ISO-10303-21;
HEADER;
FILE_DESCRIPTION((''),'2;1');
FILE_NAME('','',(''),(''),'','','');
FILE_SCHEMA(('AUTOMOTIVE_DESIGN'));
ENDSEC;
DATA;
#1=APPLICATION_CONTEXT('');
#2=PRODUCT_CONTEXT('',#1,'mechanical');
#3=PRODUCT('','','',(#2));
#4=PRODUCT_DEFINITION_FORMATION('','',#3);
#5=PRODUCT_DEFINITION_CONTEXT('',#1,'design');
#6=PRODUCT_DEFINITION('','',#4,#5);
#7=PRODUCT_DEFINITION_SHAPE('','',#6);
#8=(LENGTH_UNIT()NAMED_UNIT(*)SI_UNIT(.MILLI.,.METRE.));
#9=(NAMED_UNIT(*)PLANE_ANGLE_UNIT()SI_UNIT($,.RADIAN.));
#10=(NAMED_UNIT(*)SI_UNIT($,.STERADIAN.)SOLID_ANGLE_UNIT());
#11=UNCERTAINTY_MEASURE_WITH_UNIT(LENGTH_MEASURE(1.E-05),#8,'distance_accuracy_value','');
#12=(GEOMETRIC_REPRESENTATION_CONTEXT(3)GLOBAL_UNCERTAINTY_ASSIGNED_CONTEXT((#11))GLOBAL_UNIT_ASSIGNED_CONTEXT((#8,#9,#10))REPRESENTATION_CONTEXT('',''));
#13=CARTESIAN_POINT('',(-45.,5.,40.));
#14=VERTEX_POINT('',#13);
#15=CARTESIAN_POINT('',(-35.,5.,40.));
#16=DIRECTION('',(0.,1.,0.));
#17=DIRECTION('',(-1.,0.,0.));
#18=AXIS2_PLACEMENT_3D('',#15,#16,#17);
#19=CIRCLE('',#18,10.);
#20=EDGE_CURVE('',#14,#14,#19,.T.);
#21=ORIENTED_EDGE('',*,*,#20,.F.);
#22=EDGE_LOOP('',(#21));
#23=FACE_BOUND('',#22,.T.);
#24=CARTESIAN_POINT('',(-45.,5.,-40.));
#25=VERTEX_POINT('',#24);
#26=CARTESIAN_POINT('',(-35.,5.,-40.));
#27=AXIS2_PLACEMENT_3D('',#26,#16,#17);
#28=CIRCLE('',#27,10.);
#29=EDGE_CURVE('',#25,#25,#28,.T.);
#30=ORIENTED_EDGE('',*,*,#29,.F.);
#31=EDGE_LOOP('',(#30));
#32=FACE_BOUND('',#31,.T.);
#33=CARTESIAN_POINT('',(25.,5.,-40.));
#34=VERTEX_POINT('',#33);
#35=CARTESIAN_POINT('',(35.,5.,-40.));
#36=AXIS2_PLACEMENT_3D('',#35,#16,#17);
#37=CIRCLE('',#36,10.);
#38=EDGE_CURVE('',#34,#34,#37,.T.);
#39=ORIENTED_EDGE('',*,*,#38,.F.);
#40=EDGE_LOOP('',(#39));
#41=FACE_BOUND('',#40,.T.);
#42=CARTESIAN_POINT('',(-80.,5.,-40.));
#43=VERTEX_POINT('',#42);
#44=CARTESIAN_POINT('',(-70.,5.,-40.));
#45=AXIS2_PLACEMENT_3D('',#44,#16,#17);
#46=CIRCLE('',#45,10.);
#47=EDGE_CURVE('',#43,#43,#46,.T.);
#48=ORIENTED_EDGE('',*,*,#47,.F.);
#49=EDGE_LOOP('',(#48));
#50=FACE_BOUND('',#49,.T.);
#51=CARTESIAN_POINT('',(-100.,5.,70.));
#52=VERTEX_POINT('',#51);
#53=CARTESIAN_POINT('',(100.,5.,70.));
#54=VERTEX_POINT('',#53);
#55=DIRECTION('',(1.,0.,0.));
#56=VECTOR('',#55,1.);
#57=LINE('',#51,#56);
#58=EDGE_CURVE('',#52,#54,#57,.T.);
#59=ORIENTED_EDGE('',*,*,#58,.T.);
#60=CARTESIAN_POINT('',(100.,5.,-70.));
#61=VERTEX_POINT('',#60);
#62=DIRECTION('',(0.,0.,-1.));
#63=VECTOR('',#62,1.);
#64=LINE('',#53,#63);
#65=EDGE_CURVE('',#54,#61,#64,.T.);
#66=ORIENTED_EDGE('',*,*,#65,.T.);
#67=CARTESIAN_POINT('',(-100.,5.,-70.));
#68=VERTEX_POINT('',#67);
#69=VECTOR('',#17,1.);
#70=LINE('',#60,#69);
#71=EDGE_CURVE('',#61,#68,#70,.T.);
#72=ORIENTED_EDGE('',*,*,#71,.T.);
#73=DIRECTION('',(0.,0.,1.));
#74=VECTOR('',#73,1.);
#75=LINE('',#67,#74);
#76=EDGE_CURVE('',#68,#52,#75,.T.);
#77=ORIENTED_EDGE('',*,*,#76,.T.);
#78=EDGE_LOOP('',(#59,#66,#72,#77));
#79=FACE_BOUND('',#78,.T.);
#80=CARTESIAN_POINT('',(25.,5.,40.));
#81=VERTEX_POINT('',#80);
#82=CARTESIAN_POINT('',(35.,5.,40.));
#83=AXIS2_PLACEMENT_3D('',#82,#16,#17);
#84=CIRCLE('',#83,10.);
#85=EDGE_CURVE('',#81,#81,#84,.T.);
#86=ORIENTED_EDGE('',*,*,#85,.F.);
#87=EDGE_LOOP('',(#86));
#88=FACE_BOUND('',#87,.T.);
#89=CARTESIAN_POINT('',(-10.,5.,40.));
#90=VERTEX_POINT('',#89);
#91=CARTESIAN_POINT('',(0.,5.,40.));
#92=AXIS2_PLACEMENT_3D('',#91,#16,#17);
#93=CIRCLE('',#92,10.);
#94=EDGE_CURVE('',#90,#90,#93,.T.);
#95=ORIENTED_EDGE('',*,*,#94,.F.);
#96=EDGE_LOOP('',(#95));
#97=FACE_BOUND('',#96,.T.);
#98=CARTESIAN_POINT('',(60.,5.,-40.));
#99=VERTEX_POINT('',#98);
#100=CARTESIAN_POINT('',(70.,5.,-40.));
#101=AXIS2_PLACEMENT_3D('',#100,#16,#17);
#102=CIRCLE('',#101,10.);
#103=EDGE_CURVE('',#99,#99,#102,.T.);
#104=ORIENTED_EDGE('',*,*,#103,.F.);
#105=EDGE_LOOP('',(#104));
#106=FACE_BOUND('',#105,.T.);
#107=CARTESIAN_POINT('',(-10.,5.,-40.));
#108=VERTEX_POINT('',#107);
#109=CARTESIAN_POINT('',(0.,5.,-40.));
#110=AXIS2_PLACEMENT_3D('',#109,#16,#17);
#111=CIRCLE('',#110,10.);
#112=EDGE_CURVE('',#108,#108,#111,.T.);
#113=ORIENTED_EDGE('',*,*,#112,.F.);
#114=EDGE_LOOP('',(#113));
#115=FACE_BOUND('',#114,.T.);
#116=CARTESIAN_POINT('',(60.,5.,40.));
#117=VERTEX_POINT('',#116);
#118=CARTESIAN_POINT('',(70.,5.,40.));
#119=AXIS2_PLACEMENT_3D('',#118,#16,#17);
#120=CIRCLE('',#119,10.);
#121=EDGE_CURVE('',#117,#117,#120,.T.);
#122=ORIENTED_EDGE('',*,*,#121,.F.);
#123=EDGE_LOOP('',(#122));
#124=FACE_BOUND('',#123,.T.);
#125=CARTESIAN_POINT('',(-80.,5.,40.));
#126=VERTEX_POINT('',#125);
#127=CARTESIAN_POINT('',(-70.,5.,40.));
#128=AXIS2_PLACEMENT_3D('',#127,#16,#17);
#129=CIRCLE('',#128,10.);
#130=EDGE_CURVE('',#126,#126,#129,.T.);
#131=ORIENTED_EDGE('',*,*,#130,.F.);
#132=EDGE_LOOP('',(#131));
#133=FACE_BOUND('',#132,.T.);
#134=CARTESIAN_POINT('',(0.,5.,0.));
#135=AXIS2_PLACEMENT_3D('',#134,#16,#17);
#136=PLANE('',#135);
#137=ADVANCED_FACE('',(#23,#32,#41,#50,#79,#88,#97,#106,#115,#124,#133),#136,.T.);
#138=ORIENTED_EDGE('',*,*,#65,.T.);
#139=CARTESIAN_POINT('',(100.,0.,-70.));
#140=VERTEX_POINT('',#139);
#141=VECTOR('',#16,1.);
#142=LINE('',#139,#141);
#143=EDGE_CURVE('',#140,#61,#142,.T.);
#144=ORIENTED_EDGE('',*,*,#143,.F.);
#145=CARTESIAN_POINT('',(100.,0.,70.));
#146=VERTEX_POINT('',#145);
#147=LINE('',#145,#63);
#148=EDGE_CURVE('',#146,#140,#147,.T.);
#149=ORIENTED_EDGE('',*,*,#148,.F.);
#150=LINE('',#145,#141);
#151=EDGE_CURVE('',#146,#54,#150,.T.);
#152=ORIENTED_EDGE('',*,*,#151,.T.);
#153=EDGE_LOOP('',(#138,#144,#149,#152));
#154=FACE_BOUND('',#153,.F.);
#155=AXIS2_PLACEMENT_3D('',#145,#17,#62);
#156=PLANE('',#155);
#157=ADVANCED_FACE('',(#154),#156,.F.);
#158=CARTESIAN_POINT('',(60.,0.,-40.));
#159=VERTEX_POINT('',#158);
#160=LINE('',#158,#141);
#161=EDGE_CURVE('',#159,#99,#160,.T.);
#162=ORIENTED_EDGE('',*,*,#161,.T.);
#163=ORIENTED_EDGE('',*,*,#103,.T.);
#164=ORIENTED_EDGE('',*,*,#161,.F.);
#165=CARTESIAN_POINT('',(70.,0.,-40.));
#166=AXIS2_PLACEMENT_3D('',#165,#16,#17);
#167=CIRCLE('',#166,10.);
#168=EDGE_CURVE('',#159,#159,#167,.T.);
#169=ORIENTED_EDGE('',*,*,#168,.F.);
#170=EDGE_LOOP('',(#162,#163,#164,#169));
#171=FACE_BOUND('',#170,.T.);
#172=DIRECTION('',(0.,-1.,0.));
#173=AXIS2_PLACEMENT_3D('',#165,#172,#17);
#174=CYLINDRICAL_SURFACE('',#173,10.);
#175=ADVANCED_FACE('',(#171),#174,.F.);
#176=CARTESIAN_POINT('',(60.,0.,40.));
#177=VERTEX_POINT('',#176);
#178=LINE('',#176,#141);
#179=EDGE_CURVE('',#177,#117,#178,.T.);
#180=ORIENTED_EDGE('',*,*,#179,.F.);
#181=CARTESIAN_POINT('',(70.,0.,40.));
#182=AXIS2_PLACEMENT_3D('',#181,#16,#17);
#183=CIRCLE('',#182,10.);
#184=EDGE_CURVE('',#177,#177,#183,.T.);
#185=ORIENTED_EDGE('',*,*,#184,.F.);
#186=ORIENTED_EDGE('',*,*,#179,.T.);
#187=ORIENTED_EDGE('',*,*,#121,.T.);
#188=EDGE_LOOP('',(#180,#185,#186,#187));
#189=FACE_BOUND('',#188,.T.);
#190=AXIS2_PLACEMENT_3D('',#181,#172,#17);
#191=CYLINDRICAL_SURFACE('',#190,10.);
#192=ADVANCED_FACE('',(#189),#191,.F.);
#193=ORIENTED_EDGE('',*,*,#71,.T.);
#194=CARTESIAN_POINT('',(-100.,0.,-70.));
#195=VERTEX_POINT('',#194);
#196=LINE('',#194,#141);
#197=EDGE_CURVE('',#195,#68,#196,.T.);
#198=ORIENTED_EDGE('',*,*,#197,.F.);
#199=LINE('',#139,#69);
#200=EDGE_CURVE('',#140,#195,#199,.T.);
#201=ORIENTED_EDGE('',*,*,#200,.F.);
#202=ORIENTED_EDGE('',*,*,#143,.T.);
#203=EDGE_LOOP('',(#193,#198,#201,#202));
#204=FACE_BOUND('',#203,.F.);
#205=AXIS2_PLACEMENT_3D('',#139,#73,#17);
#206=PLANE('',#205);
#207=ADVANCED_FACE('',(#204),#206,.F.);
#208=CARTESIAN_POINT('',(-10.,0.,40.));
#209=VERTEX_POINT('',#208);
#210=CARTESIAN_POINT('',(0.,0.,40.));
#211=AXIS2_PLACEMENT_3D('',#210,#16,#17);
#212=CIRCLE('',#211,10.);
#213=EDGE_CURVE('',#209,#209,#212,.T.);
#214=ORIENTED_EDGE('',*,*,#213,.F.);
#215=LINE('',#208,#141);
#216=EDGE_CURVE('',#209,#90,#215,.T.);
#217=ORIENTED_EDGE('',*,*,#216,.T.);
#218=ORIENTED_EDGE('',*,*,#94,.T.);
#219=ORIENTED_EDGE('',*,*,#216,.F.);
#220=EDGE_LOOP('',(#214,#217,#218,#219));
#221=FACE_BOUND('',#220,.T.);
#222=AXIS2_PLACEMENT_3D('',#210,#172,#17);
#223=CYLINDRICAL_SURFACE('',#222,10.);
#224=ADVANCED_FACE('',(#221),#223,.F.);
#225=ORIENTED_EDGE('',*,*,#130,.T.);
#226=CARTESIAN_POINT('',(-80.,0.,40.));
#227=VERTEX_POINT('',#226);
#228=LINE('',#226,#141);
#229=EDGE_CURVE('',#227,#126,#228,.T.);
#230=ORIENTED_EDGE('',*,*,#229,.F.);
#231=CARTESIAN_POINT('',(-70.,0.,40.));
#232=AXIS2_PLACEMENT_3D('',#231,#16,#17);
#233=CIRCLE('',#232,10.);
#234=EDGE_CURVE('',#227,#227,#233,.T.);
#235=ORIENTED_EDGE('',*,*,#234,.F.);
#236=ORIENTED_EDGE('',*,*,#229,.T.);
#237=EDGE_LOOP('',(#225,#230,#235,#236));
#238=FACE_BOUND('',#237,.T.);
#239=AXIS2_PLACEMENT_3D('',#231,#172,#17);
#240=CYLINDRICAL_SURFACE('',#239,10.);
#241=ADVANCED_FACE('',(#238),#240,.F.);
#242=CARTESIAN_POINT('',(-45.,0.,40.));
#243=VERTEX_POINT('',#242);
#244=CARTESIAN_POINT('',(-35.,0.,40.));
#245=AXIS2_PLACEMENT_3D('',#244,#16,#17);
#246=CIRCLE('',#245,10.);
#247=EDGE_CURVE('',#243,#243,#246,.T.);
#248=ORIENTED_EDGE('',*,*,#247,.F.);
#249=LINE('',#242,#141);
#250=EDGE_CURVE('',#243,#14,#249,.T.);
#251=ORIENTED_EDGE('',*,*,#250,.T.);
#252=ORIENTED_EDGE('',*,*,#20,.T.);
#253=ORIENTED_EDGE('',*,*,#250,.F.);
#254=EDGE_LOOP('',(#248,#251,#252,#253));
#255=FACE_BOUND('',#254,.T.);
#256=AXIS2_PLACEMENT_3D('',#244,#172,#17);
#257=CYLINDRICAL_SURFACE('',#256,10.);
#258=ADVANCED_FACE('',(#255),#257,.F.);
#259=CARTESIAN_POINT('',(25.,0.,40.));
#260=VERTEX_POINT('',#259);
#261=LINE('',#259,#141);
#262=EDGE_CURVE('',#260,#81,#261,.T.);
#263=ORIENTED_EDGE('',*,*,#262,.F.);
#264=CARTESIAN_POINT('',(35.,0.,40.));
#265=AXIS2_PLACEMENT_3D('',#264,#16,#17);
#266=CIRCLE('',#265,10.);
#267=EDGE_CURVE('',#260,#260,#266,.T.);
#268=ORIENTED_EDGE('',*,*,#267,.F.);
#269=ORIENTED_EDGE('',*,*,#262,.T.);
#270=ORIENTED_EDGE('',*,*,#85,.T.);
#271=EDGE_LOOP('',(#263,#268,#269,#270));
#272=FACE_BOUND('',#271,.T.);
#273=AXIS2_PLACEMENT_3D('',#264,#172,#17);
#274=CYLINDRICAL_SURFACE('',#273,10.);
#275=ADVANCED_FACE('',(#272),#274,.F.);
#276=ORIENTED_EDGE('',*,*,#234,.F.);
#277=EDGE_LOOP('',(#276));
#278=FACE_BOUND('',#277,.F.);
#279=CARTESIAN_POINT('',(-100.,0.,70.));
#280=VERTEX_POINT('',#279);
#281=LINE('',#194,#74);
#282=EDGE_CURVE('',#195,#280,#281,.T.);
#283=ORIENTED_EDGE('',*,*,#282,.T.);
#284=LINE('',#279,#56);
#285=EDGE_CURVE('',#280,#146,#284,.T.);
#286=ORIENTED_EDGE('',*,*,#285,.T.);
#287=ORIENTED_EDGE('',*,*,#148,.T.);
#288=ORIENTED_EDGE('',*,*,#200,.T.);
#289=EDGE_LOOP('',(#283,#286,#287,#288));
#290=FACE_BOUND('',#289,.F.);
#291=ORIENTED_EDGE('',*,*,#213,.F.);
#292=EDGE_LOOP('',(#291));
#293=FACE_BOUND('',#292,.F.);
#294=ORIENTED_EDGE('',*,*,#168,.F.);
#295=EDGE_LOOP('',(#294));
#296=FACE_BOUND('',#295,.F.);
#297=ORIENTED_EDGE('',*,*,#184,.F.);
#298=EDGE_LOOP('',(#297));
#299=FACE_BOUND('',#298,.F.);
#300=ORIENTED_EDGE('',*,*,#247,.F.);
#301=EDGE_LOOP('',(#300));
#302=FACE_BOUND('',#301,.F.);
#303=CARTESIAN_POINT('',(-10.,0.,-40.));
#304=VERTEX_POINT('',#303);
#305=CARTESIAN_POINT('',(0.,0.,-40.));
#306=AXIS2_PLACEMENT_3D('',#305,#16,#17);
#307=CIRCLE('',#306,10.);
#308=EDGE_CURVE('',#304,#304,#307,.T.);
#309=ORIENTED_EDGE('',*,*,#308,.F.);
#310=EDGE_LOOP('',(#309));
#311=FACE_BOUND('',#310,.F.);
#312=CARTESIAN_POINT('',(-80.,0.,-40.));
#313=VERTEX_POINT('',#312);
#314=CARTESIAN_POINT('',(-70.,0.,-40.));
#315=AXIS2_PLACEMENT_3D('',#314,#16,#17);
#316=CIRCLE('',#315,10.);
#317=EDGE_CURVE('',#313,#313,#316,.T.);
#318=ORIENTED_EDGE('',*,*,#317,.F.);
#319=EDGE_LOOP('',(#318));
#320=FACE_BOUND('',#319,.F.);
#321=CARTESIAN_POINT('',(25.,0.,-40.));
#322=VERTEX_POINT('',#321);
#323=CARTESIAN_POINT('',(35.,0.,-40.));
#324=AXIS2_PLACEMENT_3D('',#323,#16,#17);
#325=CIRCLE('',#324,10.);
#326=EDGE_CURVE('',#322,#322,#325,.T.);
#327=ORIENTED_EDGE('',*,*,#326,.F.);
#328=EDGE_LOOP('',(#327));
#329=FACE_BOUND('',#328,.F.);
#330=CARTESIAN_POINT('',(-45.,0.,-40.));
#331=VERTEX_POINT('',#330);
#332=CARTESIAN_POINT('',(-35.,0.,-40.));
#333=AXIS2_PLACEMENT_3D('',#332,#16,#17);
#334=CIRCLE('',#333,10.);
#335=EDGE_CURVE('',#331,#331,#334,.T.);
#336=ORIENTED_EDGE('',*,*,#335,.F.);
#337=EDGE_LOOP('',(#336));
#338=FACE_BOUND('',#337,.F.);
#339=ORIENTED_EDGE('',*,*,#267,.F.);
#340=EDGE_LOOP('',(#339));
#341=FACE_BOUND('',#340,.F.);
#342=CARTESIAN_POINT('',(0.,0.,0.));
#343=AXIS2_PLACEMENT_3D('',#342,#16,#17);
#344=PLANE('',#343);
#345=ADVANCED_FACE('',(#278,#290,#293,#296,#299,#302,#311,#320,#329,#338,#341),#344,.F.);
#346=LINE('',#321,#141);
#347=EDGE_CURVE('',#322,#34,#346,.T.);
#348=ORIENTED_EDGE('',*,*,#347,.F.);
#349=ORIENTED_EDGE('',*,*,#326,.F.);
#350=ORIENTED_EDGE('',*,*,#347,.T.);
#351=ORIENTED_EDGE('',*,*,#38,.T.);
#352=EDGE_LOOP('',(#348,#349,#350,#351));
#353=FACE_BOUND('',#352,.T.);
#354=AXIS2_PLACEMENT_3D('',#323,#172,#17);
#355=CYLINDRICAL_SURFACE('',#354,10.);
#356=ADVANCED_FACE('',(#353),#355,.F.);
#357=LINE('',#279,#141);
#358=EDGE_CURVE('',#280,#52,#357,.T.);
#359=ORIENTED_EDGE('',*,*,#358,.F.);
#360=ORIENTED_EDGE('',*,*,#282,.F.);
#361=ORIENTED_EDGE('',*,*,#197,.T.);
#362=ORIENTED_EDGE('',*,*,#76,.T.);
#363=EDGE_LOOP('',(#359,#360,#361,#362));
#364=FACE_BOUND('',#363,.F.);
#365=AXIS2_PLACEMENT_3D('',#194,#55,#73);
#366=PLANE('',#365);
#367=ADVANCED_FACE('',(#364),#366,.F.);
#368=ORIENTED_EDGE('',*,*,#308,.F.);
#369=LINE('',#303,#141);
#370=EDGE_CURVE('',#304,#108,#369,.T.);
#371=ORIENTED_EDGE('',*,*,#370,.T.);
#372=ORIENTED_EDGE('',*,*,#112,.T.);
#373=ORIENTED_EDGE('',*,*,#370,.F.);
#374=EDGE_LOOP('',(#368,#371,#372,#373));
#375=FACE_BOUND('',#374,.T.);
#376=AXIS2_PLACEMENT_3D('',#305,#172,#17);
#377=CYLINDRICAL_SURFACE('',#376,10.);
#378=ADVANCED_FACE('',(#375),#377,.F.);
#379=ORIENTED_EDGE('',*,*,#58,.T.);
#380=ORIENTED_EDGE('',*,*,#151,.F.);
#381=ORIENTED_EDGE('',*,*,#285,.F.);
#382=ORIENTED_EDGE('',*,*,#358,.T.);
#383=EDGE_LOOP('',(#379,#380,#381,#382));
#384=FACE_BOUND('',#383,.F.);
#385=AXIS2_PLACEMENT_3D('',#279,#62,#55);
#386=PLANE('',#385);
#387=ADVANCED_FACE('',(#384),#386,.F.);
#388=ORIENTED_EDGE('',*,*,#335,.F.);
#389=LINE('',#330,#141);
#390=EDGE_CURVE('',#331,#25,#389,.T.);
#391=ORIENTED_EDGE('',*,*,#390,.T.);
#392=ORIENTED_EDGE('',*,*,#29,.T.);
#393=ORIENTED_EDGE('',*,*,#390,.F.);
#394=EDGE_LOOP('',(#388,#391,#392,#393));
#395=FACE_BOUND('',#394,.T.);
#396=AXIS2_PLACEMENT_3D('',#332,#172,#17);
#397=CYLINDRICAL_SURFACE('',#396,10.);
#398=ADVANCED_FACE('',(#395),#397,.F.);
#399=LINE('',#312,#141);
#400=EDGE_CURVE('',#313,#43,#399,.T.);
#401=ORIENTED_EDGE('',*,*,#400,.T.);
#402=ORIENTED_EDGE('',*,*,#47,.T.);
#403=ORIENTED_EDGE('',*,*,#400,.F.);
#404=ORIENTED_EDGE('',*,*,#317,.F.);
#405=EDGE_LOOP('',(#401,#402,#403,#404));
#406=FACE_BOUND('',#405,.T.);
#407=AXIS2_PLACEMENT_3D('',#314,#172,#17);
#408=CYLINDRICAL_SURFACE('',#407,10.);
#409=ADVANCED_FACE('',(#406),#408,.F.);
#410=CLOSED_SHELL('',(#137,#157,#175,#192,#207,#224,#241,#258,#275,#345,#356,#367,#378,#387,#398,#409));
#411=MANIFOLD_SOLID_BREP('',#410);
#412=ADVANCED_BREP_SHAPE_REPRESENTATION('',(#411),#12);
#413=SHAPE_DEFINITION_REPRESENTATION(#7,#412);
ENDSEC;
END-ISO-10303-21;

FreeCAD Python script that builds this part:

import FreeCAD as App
import Part
import Sketcher
from FreeCAD import Vector


def add_polygon(sketch, points):
    """Adds a closed chain of lines whose ends are joined by coincident constraints."""
    first, n = sketch.GeometryCount, len(points)
    for a, b in zip(points, points[1:] + points[:1]):
        sketch.addGeometry(Part.LineSegment(App.Vector(*a, 0), App.Vector(*b, 0)), False)
    for i in range(n):
        sketch.addConstraint(Sketcher.Constraint("Coincident", first + i, 2, first + (i + 1) % n, 1))

doc = App.newDocument("Part")
body = doc.addObject("PartDesign::Body", "Body")

sketch1 = body.newObject("Sketcher::SketchObject", "Sketch")
sketch1.AttachmentSupport = (doc.getObject("XZ_Plane"), [""])
sketch1.MapMode = "FlatFace"
add_polygon(sketch1, [(100, 70), (100, -70), (-100, -70), (-100, 70)])
sketch1.addGeometry(Part.Circle(Vector(70, -40, 0), Vector(0, 0, 1), 10), False)
sketch1.addGeometry(Part.Circle(Vector(35, -40, 0), Vector(0, 0, 1), 10), False)
sketch1.addGeometry(Part.Circle(Vector(0, -40, 0), Vector(0, 0, 1), 10), False)
sketch1.addGeometry(Part.Circle(Vector(-35, -40, 0), Vector(0, 0, 1), 10), False)
sketch1.addGeometry(Part.Circle(Vector(-70, -40, 0), Vector(0, 0, 1), 10), False)
sketch1.addGeometry(Part.Circle(Vector(70, 40, 0), Vector(0, 0, 1), 10), False)
sketch1.addGeometry(Part.Circle(Vector(35, 40, 0), Vector(0, 0, 1), 10), False)
sketch1.addGeometry(Part.Circle(Vector(0, 40, 0), Vector(0, 0, 1), 10), False)
sketch1.addGeometry(Part.Circle(Vector(-35, 40, 0), Vector(0, 0, 1), 10), False)
sketch1.addGeometry(Part.Circle(Vector(-70, 40, 0), Vector(0, 0, 1), 10), False)
sketch1.addConstraint([
    Sketcher.Constraint("Vertical", 0),
    Sketcher.Constraint("Horizontal", 1),
    Sketcher.Constraint("Vertical", 2),
    Sketcher.Constraint("Horizontal", 3),
    Sketcher.Constraint("Equal", 4, 5),
    Sketcher.Constraint("Equal", 5, 6),
    Sketcher.Constraint("Equal", 6, 7),
    Sketcher.Constraint("Equal", 7, 8),
    Sketcher.Constraint("Equal", 8, 9),
    Sketcher.Constraint("Equal", 9, 10),
    Sketcher.Constraint("Equal", 10, 11),
    Sketcher.Constraint("Equal", 11, 12),
    Sketcher.Constraint("Equal", 12, 13),
    Sketcher.Constraint("Symmetric", 8, 3, 9, 3, -1, 1),
    Sketcher.Constraint("Symmetric", 7, 3, 10, 3, -1, 1),
    Sketcher.Constraint("Symmetric", 6, 3, 11, 3, -1, 1),
    Sketcher.Constraint("Symmetric", 5, 3, 12, 3, -1, 1),
    Sketcher.Constraint("Symmetric", 4, 3, 13, 3, -1, 1),
    Sketcher.Constraint("Symmetric", 0, 2, 2, 2, -1, 1),
    Sketcher.Constraint("Symmetric", 5, 3, 7, 3, -2),
    Sketcher.Constraint("Symmetric", 4, 3, 8, 3, -2),
    Sketcher.Constraint("PointOnObject", 6, 3, -2),
    Sketcher.Constraint("Horizontal", 4, 3, 5, 3),
    Sketcher.Constraint("Horizontal", 5, 3, 6, 3),
    Sketcher.Constraint("Diameter", 4, 20.0),
    Sketcher.Constraint("DistanceX", 1, 2, 1, 1, 200.0),
    Sketcher.Constraint("DistanceY", 0, 2, 0, 1, 140.0),
    Sketcher.Constraint("DistanceX", -1, 1, 5, 3, 35.0),
    Sketcher.Constraint("DistanceX", 5, 3, 4, 3, 35.0),
    Sketcher.Constraint("DistanceY", 4, 3, 9, 3, 80.0),
])
pad1 = body.newObject("PartDesign::Pad", "Pad")
pad1.Profile = sketch1
pad1.Length = 5
pad1.Reversed = True

doc.recompute()
